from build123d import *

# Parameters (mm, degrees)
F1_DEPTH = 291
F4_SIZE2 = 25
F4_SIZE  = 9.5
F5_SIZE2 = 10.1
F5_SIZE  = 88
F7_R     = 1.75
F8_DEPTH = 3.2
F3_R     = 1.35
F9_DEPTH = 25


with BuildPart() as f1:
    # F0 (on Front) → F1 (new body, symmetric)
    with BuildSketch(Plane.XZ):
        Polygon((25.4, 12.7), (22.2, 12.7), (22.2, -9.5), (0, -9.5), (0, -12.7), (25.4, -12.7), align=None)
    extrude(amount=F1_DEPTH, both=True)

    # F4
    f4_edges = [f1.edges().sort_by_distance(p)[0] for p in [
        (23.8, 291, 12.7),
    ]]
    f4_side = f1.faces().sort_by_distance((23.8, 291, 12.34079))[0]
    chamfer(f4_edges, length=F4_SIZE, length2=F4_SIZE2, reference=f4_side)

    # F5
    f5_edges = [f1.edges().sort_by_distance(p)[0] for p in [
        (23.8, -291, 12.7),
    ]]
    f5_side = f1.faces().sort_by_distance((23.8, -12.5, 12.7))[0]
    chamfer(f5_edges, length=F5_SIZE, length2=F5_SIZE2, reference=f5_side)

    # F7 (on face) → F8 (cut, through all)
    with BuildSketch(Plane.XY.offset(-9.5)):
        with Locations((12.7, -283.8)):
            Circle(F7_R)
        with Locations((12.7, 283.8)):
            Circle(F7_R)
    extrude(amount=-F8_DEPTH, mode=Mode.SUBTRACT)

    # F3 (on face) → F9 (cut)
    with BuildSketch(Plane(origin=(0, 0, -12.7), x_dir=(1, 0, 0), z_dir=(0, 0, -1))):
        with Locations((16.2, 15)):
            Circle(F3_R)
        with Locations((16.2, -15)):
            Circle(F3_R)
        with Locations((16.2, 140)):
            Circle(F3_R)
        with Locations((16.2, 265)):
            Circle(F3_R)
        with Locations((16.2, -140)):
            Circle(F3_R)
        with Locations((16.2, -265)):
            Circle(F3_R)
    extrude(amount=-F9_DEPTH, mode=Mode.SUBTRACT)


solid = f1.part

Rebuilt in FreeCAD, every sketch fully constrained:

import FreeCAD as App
import Part
import Sketcher
Q = App.Units.Quantity


def edges_at(feature, points):
    """Names of the edges that pass closest to the given points."""
    edges = feature.Shape.Edges
    near = lambda p: min(range(len(edges)), key=lambda i: edges[i].distToShape(Part.Vertex(*p))[0])
    return sorted({f"Edge{near(p) + 1}" for p in points})

doc = App.newDocument("Part")
body = doc.addObject("PartDesign::Body", "Body")

sketch1 = doc.addObject("Sketcher::SketchObject", "Sketch")
body.addObject(sketch1)
sketch1.AttachmentSupport = (doc.XZ_Plane, [""])
sketch1.MapMode = "FlatFace"
sketch1.addGeometry([
    Part.LineSegment(App.Vector(25.4, 12.7, 0), App.Vector(22.2, 12.7, 0)),
    Part.LineSegment(App.Vector(22.2, 12.7, 0), App.Vector(22.2, -9.5, 0)),
    Part.LineSegment(App.Vector(22.2, -9.5, 0), App.Vector(0, -9.5, 0)),
    Part.LineSegment(App.Vector(0, -9.5, 0), App.Vector(0, -12.7, 0)),
    Part.LineSegment(App.Vector(0, -12.7, 0), App.Vector(25.4, -12.7, 0)),
    Part.LineSegment(App.Vector(25.4, -12.7, 0), App.Vector(25.4, 12.7, 0)),
], False)
sketch1.addConstraint([
    Sketcher.Constraint("Coincident", 0, 2, 1, 1),
    Sketcher.Constraint("Coincident", 1, 2, 2, 1),
    Sketcher.Constraint("Coincident", 2, 2, 3, 1),
    Sketcher.Constraint("Coincident", 3, 2, 4, 1),
    Sketcher.Constraint("Coincident", 4, 2, 5, 1),
    Sketcher.Constraint("Coincident", 5, 2, 0, 1),
    Sketcher.Constraint("Horizontal", 0),
    Sketcher.Constraint("Vertical", 1),
    Sketcher.Constraint("Horizontal", 2),
    Sketcher.Constraint("Vertical", 3),
    Sketcher.Constraint("Horizontal", 4),
    Sketcher.Constraint("Vertical", 5),
    Sketcher.Constraint("PointOnObject", 2, 2, -2),
    Sketcher.Constraint("Equal", 2, 1),
    Sketcher.Constraint("Equal", 0, 3),
    Sketcher.Constraint("DistanceX", 0, 2, 0, 1, Q("3.2 mm")),
    Sketcher.Constraint("DistanceX", 2, 2, 2, 1, Q("22.2 mm")),
    Sketcher.Constraint("DistanceY", -1, 1, 0, 2, Q("12.7 mm")),
])
pad1 = doc.addObject("PartDesign::Pad", "Pad")
body.addObject(pad1)
pad1.Profile = sketch1
pad1.Length = 582
pad1.Midplane = True
doc.recompute()

chamfer = doc.addObject("PartDesign::Chamfer", "Chamfer")
body.addObject(chamfer)
chamfer.Base = (pad1, edges_at(pad1, [(23.8, 291, 12.7)]))
chamfer.ChamferType = "Two distances"
chamfer.Size = 9.5
chamfer.Size2 = 25
chamfer.FlipDirection = True
doc.recompute()

chamfer2 = doc.addObject("PartDesign::Chamfer", "Chamfer001")
body.addObject(chamfer2)
chamfer2.Base = (chamfer, edges_at(chamfer, [(23.8, -291, 12.7)]))
chamfer2.ChamferType = "Two distances"
chamfer2.Size = 88
chamfer2.Size2 = 10.1

sketch2 = doc.addObject("Sketcher::SketchObject", "Sketch001")
body.addObject(sketch2)
sketch2.AttachmentSupport = (doc.XY_Plane, [""])
sketch2.MapMode = "FlatFace"
sketch2.AttachmentOffset = App.Placement(App.Vector(0, 0, -9.5), App.Rotation())
sketch2.addGeometry([
    Part.Circle(App.Vector(12.7, -283.8, 0), App.Vector(0, 0, 1), 1.8),
    Part.Circle(App.Vector(12.7, 283.8, 0), App.Vector(0, 0, 1), 1.8),
], False)
sketch2.addConstraint([
    Sketcher.Constraint("Equal", 0, 1),
    Sketcher.Constraint("Symmetric", 0, 3, 1, 3, -1),
    Sketcher.Constraint("Diameter", 0, Q("3.5 mm")),
    Sketcher.Constraint("DistanceX", -1, 1, 0, 3, Q("12.7 mm")),
    Sketcher.Constraint("DistanceY", 0, 3, -1, 1, Q("283.8 mm")),
])
pocket1 = doc.addObject("PartDesign::Pocket", "Pocket")
body.addObject(pocket1)
pocket1.Profile = sketch2
pocket1.Type = "ThroughAll"

sketch3 = doc.addObject("Sketcher::SketchObject", "Sketch002")
body.addObject(sketch3)
sketch3.AttachmentSupport = (doc.XY_Plane, [""])
sketch3.MapMode = "FlatFace"
sketch3.AttachmentOffset = App.Placement(App.Vector(0, 0, -12.7), App.Rotation())
sketch3.addGeometry([
    Part.Circle(App.Vector(16.2, -15, 0), App.Vector(0, 0, 1), 1.4),
    Part.Circle(App.Vector(16.2, 15, 0), App.Vector(0, 0, 1), 1.4),
    Part.Circle(App.Vector(16.2, -140, 0), App.Vector(0, 0, 1), 1.4),
    Part.Circle(App.Vector(16.2, -265, 0), App.Vector(0, 0, 1), 1.4),
    Part.Circle(App.Vector(16.2, 140, 0), App.Vector(0, 0, 1), 1.4),
    Part.Circle(App.Vector(16.2, 265, 0), App.Vector(0, 0, 1), 1.4),
], False)
sketch3.addConstraint([
    Sketcher.Constraint("Equal", 0, 1),
    Sketcher.Constraint("Equal", 1, 2),
    Sketcher.Constraint("Equal", 2, 3),
    Sketcher.Constraint("Equal", 3, 4),
    Sketcher.Constraint("Equal", 4, 5),
    Sketcher.Constraint("Symmetric", 0, 3, 1, 3, -1),
    Sketcher.Constraint("Symmetric", 2, 3, 4, 3, -1),
    Sketcher.Constraint("Symmetric", 3, 3, 5, 3, -1),
    Sketcher.Constraint("Vertical", 1, 3, 2, 3),
    Sketcher.Constraint("Vertical", 2, 3, 3, 3),
    Sketcher.Constraint("Diameter", 0, Q("2.7 mm")),
    Sketcher.Constraint("DistanceY", 0, 3, -1, 1, Q("15 mm")),
    Sketcher.Constraint("DistanceY", 2, 3, -1, 1, Q("140 mm")),
    Sketcher.Constraint("DistanceY", 3, 3, -1, 1, Q("265 mm")),
    Sketcher.Constraint("DistanceX", -1, 1, 0, 3, Q("16.2 mm")),
])
pocket2 = doc.addObject("PartDesign::Pocket", "Pocket001")
body.addObject(pocket2)
pocket2.Profile = sketch3
pocket2.Length = 25
pocket2.Reversed = True

doc.recompute()
